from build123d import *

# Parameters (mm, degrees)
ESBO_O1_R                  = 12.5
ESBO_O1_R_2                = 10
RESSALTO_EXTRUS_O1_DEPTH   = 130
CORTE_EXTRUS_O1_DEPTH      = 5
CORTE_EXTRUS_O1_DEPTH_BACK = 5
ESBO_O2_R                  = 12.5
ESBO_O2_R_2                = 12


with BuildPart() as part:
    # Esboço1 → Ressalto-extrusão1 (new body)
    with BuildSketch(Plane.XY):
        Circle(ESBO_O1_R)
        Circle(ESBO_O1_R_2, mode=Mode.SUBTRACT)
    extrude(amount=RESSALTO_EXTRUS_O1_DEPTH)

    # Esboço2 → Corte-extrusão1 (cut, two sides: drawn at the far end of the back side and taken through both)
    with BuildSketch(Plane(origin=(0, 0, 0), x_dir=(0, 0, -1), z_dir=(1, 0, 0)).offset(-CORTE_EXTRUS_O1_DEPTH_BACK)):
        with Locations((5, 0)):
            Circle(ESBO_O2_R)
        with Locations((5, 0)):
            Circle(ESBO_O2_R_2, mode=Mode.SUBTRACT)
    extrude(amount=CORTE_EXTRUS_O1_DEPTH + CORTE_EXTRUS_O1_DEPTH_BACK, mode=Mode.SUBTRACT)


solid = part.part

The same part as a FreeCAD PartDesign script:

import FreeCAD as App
import Part
import Sketcher

V = App.Vector

doc = App.newDocument("Part")
body = doc.addObject("PartDesign::Body", "Body")

# Sketch on XY plane
sketch1 = body.newObject("Sketcher::SketchObject", "Sketch")
sketch1.AttachmentSupport = (doc.getObject("XY_Plane"), [""])
sketch1.MapMode = "FlatFace"
sketch1.addGeometry(Part.Circle(V(0, 0, 0), V(0, 0, 1), 12), False)
sketch1.addGeometry(Part.Circle(V(0, 0, 0), V(0, 0, 1), 10), False)
sketch1.addConstraint(Sketcher.Constraint("Coincident", 0, 3, -1, 1))
sketch1.addConstraint(Sketcher.Constraint("Coincident", 1, 3, -1, 1))
sketch1.addConstraint(Sketcher.Constraint("Diameter", 0, 25.0))
sketch1.addConstraint(Sketcher.Constraint("Diameter", 1, 20.0))
pad1 = body.newObject("PartDesign::Pad", "Pad")
pad1.Profile = sketch1
pad1.Length = 130

# Sketch on YZ plane
sketch2 = body.newObject("Sketcher::SketchObject", "Sketch001")
sketch2.AttachmentSupport = (doc.getObject("YZ_Plane"), [""])
sketch2.MapMode = "FlatFace"
sketch2.addGeometry(Part.Circle(V(0, -5, 0), V(0, 0, 1), 12), False)
sketch2.addGeometry(Part.Circle(V(0, -5, 0), V(0, 0, 1), 12), False)
sketch2.addConstraint(Sketcher.Constraint("Coincident", 1, 3, 0, 3))
sketch2.addConstraint(Sketcher.Constraint("PointOnObject", 0, 3, -2))
sketch2.addConstraint(Sketcher.Constraint("Diameter", 0, 25.0))
sketch2.addConstraint(Sketcher.Constraint("Diameter", 1, 24.0))
sketch2.addConstraint(Sketcher.Constraint("DistanceY", 0, 3, -1, 1, 5.0))
pocket1 = body.newObject("PartDesign::Pocket", "Pocket")
pocket1.Profile = sketch2
pocket1.Type = "TwoLengths"
pocket1.Length = 5
pocket1.Length2 = 5
pocket1.Reversed = True

doc.recompute()
